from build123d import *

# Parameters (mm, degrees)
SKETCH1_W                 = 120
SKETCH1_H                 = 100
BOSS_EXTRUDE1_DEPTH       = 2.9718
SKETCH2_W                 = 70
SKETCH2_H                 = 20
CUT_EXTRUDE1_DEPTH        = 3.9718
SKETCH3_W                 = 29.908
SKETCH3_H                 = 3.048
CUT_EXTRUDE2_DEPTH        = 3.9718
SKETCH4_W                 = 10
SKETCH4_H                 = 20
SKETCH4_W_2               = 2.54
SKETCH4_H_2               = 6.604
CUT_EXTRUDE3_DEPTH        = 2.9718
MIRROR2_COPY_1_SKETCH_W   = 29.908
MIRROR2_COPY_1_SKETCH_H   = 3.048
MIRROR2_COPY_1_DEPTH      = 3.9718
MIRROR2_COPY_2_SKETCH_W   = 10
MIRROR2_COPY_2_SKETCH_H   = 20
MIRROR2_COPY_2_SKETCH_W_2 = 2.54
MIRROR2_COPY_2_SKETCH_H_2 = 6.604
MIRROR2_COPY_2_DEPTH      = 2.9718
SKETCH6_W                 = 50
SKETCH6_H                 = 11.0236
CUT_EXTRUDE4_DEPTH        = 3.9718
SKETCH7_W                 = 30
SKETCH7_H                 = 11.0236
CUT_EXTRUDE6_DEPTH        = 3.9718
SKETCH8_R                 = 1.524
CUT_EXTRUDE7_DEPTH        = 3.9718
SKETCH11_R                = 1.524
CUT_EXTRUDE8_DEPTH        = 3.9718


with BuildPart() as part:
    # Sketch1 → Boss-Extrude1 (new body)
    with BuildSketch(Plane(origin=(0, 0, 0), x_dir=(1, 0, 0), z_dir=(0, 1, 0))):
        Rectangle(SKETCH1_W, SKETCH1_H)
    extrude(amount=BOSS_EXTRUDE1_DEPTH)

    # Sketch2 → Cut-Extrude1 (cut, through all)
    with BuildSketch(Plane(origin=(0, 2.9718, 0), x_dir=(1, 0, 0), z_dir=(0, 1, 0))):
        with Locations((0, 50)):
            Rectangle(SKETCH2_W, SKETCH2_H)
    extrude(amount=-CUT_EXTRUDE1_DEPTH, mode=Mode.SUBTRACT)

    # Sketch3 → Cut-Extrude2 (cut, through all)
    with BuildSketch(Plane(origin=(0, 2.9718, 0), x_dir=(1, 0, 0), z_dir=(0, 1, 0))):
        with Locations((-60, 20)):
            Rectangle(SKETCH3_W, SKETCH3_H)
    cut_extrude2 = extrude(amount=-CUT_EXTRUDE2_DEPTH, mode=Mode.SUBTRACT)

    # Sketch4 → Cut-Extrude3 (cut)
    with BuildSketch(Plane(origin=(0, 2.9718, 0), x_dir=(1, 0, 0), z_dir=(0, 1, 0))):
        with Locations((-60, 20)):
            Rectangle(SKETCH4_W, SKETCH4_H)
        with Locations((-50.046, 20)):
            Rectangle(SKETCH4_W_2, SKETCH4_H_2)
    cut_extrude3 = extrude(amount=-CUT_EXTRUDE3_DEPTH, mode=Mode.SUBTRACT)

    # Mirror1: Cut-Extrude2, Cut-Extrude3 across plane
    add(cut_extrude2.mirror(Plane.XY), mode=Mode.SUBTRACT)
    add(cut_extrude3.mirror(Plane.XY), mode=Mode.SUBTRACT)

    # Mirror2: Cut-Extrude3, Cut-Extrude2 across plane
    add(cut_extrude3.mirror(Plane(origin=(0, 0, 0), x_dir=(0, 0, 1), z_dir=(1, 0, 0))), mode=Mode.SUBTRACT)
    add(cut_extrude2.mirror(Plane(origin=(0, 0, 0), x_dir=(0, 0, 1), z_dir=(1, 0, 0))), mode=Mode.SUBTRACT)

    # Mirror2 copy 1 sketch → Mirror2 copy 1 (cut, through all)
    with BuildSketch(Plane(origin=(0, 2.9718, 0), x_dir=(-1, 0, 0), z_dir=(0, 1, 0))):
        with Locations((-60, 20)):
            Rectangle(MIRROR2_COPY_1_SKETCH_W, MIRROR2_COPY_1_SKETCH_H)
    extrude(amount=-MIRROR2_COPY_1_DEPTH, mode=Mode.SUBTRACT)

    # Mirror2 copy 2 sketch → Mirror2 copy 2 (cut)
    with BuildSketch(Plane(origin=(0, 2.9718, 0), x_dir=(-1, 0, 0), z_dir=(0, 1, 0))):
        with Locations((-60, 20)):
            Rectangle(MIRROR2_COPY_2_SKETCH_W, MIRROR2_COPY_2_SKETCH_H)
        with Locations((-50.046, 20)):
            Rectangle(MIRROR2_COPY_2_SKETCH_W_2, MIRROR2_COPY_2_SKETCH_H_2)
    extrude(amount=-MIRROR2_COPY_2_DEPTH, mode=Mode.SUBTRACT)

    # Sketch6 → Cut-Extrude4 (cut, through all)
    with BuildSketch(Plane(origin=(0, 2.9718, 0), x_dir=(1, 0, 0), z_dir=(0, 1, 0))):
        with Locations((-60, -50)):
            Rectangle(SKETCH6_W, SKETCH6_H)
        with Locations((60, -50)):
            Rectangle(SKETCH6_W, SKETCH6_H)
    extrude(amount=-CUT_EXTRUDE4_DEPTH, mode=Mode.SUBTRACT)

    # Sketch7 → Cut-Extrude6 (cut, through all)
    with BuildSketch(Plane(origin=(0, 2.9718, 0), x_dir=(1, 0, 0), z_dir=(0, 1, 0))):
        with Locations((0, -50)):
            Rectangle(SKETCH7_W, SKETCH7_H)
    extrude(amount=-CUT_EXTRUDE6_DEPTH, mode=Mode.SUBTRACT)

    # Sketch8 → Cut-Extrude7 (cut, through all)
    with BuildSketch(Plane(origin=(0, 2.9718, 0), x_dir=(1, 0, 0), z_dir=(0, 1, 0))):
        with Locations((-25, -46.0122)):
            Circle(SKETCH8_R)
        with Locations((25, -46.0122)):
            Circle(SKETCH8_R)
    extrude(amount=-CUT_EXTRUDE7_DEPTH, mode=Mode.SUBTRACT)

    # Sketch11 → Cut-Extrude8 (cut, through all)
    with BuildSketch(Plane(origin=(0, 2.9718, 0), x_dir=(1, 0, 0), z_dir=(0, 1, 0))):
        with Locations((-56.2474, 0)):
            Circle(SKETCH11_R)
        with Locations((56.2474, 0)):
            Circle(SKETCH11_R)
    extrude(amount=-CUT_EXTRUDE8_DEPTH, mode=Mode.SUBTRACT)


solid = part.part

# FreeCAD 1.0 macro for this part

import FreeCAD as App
import Part
import Sketcher

doc = App.newDocument("Part")
params = doc.addObject("Spreadsheet::Sheet", "Params")
for row, (alias, value) in enumerate([
    ("sketch1_width", "120 mm"),
    ("sketch1_height", "100 mm"),
    ("pad1_length", "2.9718 mm"),
    ("sketch2_width", "70 mm"),
    ("sketch2_height", "20 mm"),
    ("sketch4_width", "10 mm"),
    ("sketch4_height", "20 mm"),
    ("sketch4_width2", "2.54 mm"),
    ("pocket3_length", "2.9718 mm"),
    ("sketch6_width", "10 mm"),
    ("sketch6_height", "20 mm"),
    ("sketch6_width2", "2.54 mm"),
    ("pocket5_length", "2.9718 mm"),
    ("sketch7_width", "50 mm"),
    ("sketch8_width", "30 mm"),
], start=1):
    params.set(f"A{row}", alias)
    params.set(f"B{row}", "=" + value)
    params.setAlias(f"B{row}", alias)

body = doc.addObject("PartDesign::Body", "Body")

# Sketch on XZ plane
sketch1 = body.newObject("Sketcher::SketchObject", "Sketch")
sketch1.AttachmentSupport = (doc.getObject("XZ_Plane"), [""])
sketch1.MapMode = "FlatFace"
sketch1.addGeometry([
    Part.LineSegment(App.Vector(-60, -50, 0), App.Vector(-60, 50, 0)),
    Part.LineSegment(App.Vector(-60, 50, 0), App.Vector(60, 50, 0)),
    Part.LineSegment(App.Vector(60, 50, 0), App.Vector(60, -50, 0)),
    Part.LineSegment(App.Vector(60, -50, 0), App.Vector(-60, -50, 0)),
], False)
sketch1.addConstraint([
    Sketcher.Constraint("Coincident", 0, 2, 1, 1),
    Sketcher.Constraint("Coincident", 1, 2, 2, 1),
    Sketcher.Constraint("Coincident", 2, 2, 3, 1),
    Sketcher.Constraint("Coincident", 3, 2, 0, 1),
    Sketcher.Constraint("Vertical", 0),
    Sketcher.Constraint("Horizontal", 1),
    Sketcher.Constraint("Vertical", 2),
    Sketcher.Constraint("Horizontal", 3),
    Sketcher.Constraint("Symmetric", 0, 2, 2, 2, -1, 1),
    Sketcher.Constraint("DistanceX", 1, 1, 1, 2, 120.0),
    Sketcher.Constraint("DistanceY", 0, 1, 0, 2, 100.0),
])
sketch1.setExpression("Constraints[9]", "Params.sketch1_width")
sketch1.setExpression("Constraints[10]", "Params.sketch1_height")
pad1 = body.newObject("PartDesign::Pad", "Pad")
pad1.Profile = sketch1
pad1.setExpression("Length", "Params.pad1_length")
pad1.Reversed = True

# Sketch on XZ plane
sketch2 = body.newObject("Sketcher::SketchObject", "Sketch001")
sketch2.AttachmentSupport = (doc.getObject("XZ_Plane"), [""])
sketch2.MapMode = "FlatFace"
sketch2.AttachmentOffset = App.Placement(App.Vector(0, 0, -2.9718), App.Rotation())
sketch2.addGeometry([
    Part.LineSegment(App.Vector(-35, -60, 0), App.Vector(-35, -40, 0)),
    Part.LineSegment(App.Vector(-35, -40, 0), App.Vector(35, -40, 0)),
    Part.LineSegment(App.Vector(35, -40, 0), App.Vector(35, -60, 0)),
    Part.LineSegment(App.Vector(35, -60, 0), App.Vector(-35, -60, 0)),
], False)
sketch2.addConstraint([
    Sketcher.Constraint("Coincident", 0, 2, 1, 1),
    Sketcher.Constraint("Coincident", 1, 2, 2, 1),
    Sketcher.Constraint("Coincident", 2, 2, 3, 1),
    Sketcher.Constraint("Coincident", 3, 2, 0, 1),
    Sketcher.Constraint("Vertical", 0),
    Sketcher.Constraint("Horizontal", 1),
    Sketcher.Constraint("Vertical", 2),
    Sketcher.Constraint("Horizontal", 3),
    Sketcher.Constraint("DistanceX", 1, 1, 1, 2, 70.0),
    Sketcher.Constraint("DistanceY", 0, 1, 0, 2, 20.0),
    Sketcher.Constraint("DistanceX", 0, 2, -1, 1, 35.0),
    Sketcher.Constraint("DistanceY", 0, 2, -1, 1, 40.0),
])
sketch2.setExpression("Constraints[8]", "Params.sketch2_width")
sketch2.setExpression("Constraints[9]", "Params.sketch2_height")
pocket1 = body.newObject("PartDesign::Pocket", "Pocket")
pocket1.Profile = sketch2
pocket1.Type = "ThroughAll"
pocket1.Reversed = True

# Sketch on XZ plane
sketch3 = body.newObject("Sketcher::SketchObject", "Sketch002")
sketch3.AttachmentSupport = (doc.getObject("XZ_Plane"), [""])
sketch3.MapMode = "FlatFace"
sketch3.AttachmentOffset = App.Placement(App.Vector(0, 0, -2.9718), App.Rotation())
sketch3.addGeometry([
    Part.LineSegment(App.Vector(-74.954, -21.524, 0), App.Vector(-74.954, -18.476, 0)),
    Part.LineSegment(App.Vector(-74.954, -18.476, 0), App.Vector(-45.046, -18.476, 0)),
    Part.LineSegment(App.Vector(-45.046, -18.476, 0), App.Vector(-45.046, -21.524, 0)),
    Part.LineSegment(App.Vector(-45.046, -21.524, 0), App.Vector(-74.954, -21.524, 0)),
], False)
sketch3.addConstraint([
    Sketcher.Constraint("Coincident", 0, 2, 1, 1),
    Sketcher.Constraint("Coincident", 1, 2, 2, 1),
    Sketcher.Constraint("Coincident", 2, 2, 3, 1),
    Sketcher.Constraint("Coincident", 3, 2, 0, 1),
    Sketcher.Constraint("Vertical", 0),
    Sketcher.Constraint("Horizontal", 1),
    Sketcher.Constraint("Vertical", 2),
    Sketcher.Constraint("Horizontal", 3),
    Sketcher.Constraint("DistanceX", 1, 1, 1, 2, 29.908),
    Sketcher.Constraint("DistanceY", 0, 1, 0, 2, 3.048),
    Sketcher.Constraint("DistanceX", 0, 2, -1, 1, 74.954),
    Sketcher.Constraint("DistanceY", 0, 2, -1, 1, 18.476),
])
pocket2 = body.newObject("PartDesign::Pocket", "Pocket001")
pocket2.Profile = sketch3
pocket2.Type = "ThroughAll"
pocket2.Reversed = True

# Sketch on XZ plane
sketch4 = body.newObject("Sketcher::SketchObject", "Sketch003")
sketch4.AttachmentSupport = (doc.getObject("XZ_Plane"), [""])
sketch4.MapMode = "FlatFace"
sketch4.AttachmentOffset = App.Placement(App.Vector(0, 0, -2.9718), App.Rotation())
sketch4.addGeometry([
    Part.LineSegment(App.Vector(-65, -30, 0), App.Vector(-65, -10, 0)),  # 0
    Part.LineSegment(App.Vector(-65, -10, 0), App.Vector(-55, -10, 0)),  # 1
    Part.LineSegment(App.Vector(-55, -10, 0), App.Vector(-55, -30, 0)),  # 2
    Part.LineSegment(App.Vector(-55, -30, 0), App.Vector(-65, -30, 0)),  # 3
    Part.LineSegment(App.Vector(-51.316, -23.302, 0), App.Vector(-51.316, -16.698, 0)),  # 4
    Part.LineSegment(App.Vector(-51.316, -16.698, 0), App.Vector(-48.776, -16.698, 0)),  # 5
    Part.LineSegment(App.Vector(-48.776, -16.698, 0), App.Vector(-48.776, -23.302, 0)),  # 6
    Part.LineSegment(App.Vector(-48.776, -23.302, 0), App.Vector(-51.316, -23.302, 0)),  # 7
], False)
sketch4.addConstraint([
    Sketcher.Constraint("Coincident", 0, 2, 1, 1),
    Sketcher.Constraint("Coincident", 1, 2, 2, 1),
    Sketcher.Constraint("Coincident", 2, 2, 3, 1),
    Sketcher.Constraint("Coincident", 3, 2, 0, 1),
    Sketcher.Constraint("Coincident", 4, 2, 5, 1),
    Sketcher.Constraint("Coincident", 5, 2, 6, 1),
    Sketcher.Constraint("Coincident", 6, 2, 7, 1),
    Sketcher.Constraint("Coincident", 7, 2, 4, 1),
    Sketcher.Constraint("Vertical", 0),
    Sketcher.Constraint("Horizontal", 1),
    Sketcher.Constraint("Vertical", 2),
    Sketcher.Constraint("Horizontal", 3),
    Sketcher.Constraint("Vertical", 4),
    Sketcher.Constraint("Horizontal", 5),
    Sketcher.Constraint("Vertical", 6),
    Sketcher.Constraint("Horizontal", 7),
    Sketcher.Constraint("DistanceX", 1, 1, 1, 2, 10.0),
    Sketcher.Constraint("DistanceY", 0, 1, 0, 2, 20.0),
    Sketcher.Constraint("DistanceX", 0, 2, -1, 1, 65.0),
    Sketcher.Constraint("DistanceY", 0, 2, -1, 1, 10.0),
    Sketcher.Constraint("DistanceX", 5, 1, 5, 2, 2.54),
    Sketcher.Constraint("DistanceY", 4, 1, 4, 2, 6.604),
    Sketcher.Constraint("DistanceX", 4, 2, -1, 1, 51.316),
    Sketcher.Constraint("DistanceY", 4, 2, -1, 1, 16.698),
])
sketch4.setExpression("Constraints[16]", "Params.sketch4_width")
sketch4.setExpression("Constraints[17]", "Params.sketch4_height")
sketch4.setExpression("Constraints[20]", "Params.sketch4_width2")
pocket3 = body.newObject("PartDesign::Pocket", "Pocket002")
pocket3.Profile = sketch4
pocket3.setExpression("Length", "Params.pocket3_length")
pocket3.Reversed = True
doc.recompute()

mirrored = body.newObject("PartDesign::Mirrored", "Mirrored")
mirrored.Originals = [pocket2, pocket3]
mirrored.MirrorPlane = (doc.getObject("XY_Plane"), [""])
body.Tip = mirrored
doc.recompute()

mirrored2 = body.newObject("PartDesign::Mirrored", "Mirrored001")
mirrored2.Originals = [pocket3, pocket2]
mirrored2.MirrorPlane = (doc.getObject("YZ_Plane"), [""])
body.Tip = mirrored2

# Sketch on XZ plane
sketch5 = body.newObject("Sketcher::SketchObject", "Sketch004")
sketch5.AttachmentSupport = (doc.getObject("XZ_Plane"), [""])
sketch5.MapMode = "FlatFace"
sketch5.AttachmentOffset = App.Placement(App.Vector(0, 0, -2.9718), App.Rotation())
sketch5.addGeometry([
    Part.LineSegment(App.Vector(74.954, 21.524, 0), App.Vector(74.954, 18.476, 0)),
    Part.LineSegment(App.Vector(74.954, 18.476, 0), App.Vector(45.046, 18.476, 0)),
    Part.LineSegment(App.Vector(45.046, 18.476, 0), App.Vector(45.046, 21.524, 0)),
    Part.LineSegment(App.Vector(45.046, 21.524, 0), App.Vector(74.954, 21.524, 0)),
], False)
sketch5.addConstraint([
    Sketcher.Constraint("Coincident", 0, 2, 1, 1),
    Sketcher.Constraint("Coincident", 1, 2, 2, 1),
    Sketcher.Constraint("Coincident", 2, 2, 3, 1),
    Sketcher.Constraint("Coincident", 3, 2, 0, 1),
    Sketcher.Constraint("Vertical", 0),
    Sketcher.Constraint("Horizontal", 1),
    Sketcher.Constraint("Vertical", 2),
    Sketcher.Constraint("Horizontal", 3),
    Sketcher.Constraint("DistanceX", 1, 2, 1, 1, 29.908),
    Sketcher.Constraint("DistanceY", 0, 2, 0, 1, 3.048),
    Sketcher.Constraint("DistanceX", -1, 1, 0, 2, 74.954),
    Sketcher.Constraint("DistanceY", -1, 1, 0, 2, 18.476),
])
pocket4 = body.newObject("PartDesign::Pocket", "Pocket003")
pocket4.Profile = sketch5
pocket4.Type = "ThroughAll"
pocket4.Reversed = True

# Sketch on XZ plane
sketch6 = body.newObject("Sketcher::SketchObject", "Sketch005")
sketch6.AttachmentSupport = (doc.getObject("XZ_Plane"), [""])
sketch6.MapMode = "FlatFace"
sketch6.AttachmentOffset = App.Placement(App.Vector(0, 0, -2.9718), App.Rotation())
sketch6.addGeometry([
    Part.LineSegment(App.Vector(65, 30, 0), App.Vector(65, 10, 0)),  # 0
    Part.LineSegment(App.Vector(65, 10, 0), App.Vector(55, 10, 0)),  # 1
    Part.LineSegment(App.Vector(55, 10, 0), App.Vector(55, 30, 0)),  # 2
    Part.LineSegment(App.Vector(55, 30, 0), App.Vector(65, 30, 0)),  # 3
    Part.LineSegment(App.Vector(51.316, 23.302, 0), App.Vector(51.316, 16.698, 0)),  # 4
    Part.LineSegment(App.Vector(51.316, 16.698, 0), App.Vector(48.776, 16.698, 0)),  # 5
    Part.LineSegment(App.Vector(48.776, 16.698, 0), App.Vector(48.776, 23.302, 0)),  # 6
    Part.LineSegment(App.Vector(48.776, 23.302, 0), App.Vector(51.316, 23.302, 0)),  # 7
], False)
sketch6.addConstraint([
    Sketcher.Constraint("Coincident", 0, 2, 1, 1),
    Sketcher.Constraint("Coincident", 1, 2, 2, 1),
    Sketcher.Constraint("Coincident", 2, 2, 3, 1),
    Sketcher.Constraint("Coincident", 3, 2, 0, 1),
    Sketcher.Constraint("Coincident", 4, 2, 5, 1),
    Sketcher.Constraint("Coincident", 5, 2, 6, 1),
    Sketcher.Constraint("Coincident", 6, 2, 7, 1),
    Sketcher.Constraint("Coincident", 7, 2, 4, 1),
    Sketcher.Constraint("Vertical", 0),
    Sketcher.Constraint("Horizontal", 1),
    Sketcher.Constraint("Vertical", 2),
    Sketcher.Constraint("Horizontal", 3),
    Sketcher.Constraint("Vertical", 4),
    Sketcher.Constraint("Horizontal", 5),
    Sketcher.Constraint("Vertical", 6),
    Sketcher.Constraint("Horizontal", 7),
    Sketcher.Constraint("DistanceX", 1, 2, 1, 1, 10.0),
    Sketcher.Constraint("DistanceY", 0, 2, 0, 1, 20.0),
    Sketcher.Constraint("DistanceX", -1, 1, 0, 2, 65.0),
    Sketcher.Constraint("DistanceY", -1, 1, 0, 2, 10.0),
    Sketcher.Constraint("DistanceX", 5, 2, 5, 1, 2.54),
    Sketcher.Constraint("DistanceY", 4, 2, 4, 1, 6.604),
    Sketcher.Constraint("DistanceX", -1, 1, 4, 2, 51.316),
    Sketcher.Constraint("DistanceY", -1, 1, 4, 2, 16.698),
])
sketch6.setExpression("Constraints[16]", "Params.sketch6_width")
sketch6.setExpression("Constraints[17]", "Params.sketch6_height")
sketch6.setExpression("Constraints[20]", "Params.sketch6_width2")
pocket5 = body.newObject("PartDesign::Pocket", "Pocket004")
pocket5.Profile = sketch6
pocket5.setExpression("Length", "Params.pocket5_length")
pocket5.Reversed = True

# Sketch on XZ plane
sketch7 = body.newObject("Sketcher::SketchObject", "Sketch006")
sketch7.AttachmentSupport = (doc.getObject("XZ_Plane"), [""])
sketch7.MapMode = "FlatFace"
sketch7.AttachmentOffset = App.Placement(App.Vector(0, 0, -2.9718), App.Rotation())
sketch7.addGeometry([
    Part.LineSegment(App.Vector(-85, 44.4882, 0), App.Vector(-85, 55.5118, 0)),  # 0
    Part.LineSegment(App.Vector(-85, 55.5118, 0), App.Vector(-35, 55.5118, 0)),  # 1
    Part.LineSegment(App.Vector(-35, 55.5118, 0), App.Vector(-35, 44.4882, 0)),  # 2
    Part.LineSegment(App.Vector(-35, 44.4882, 0), App.Vector(-85, 44.4882, 0)),  # 3
    Part.LineSegment(App.Vector(35, 44.4882, 0), App.Vector(35, 55.5118, 0)),  # 4
    Part.LineSegment(App.Vector(35, 55.5118, 0), App.Vector(85, 55.5118, 0)),  # 5
    Part.LineSegment(App.Vector(85, 55.5118, 0), App.Vector(85, 44.4882, 0)),  # 6
    Part.LineSegment(App.Vector(85, 44.4882, 0), App.Vector(35, 44.4882, 0)),  # 7
], False)
sketch7.addConstraint([
    Sketcher.Constraint("Coincident", 0, 2, 1, 1),
    Sketcher.Constraint("Coincident", 1, 2, 2, 1),
    Sketcher.Constraint("Coincident", 2, 2, 3, 1),
    Sketcher.Constraint("Coincident", 3, 2, 0, 1),
    Sketcher.Constraint("Coincident", 4, 2, 5, 1),
    Sketcher.Constraint("Coincident", 5, 2, 6, 1),
    Sketcher.Constraint("Coincident", 6, 2, 7, 1),
    Sketcher.Constraint("Coincident", 7, 2, 4, 1),
    Sketcher.Constraint("Vertical", 0),
    Sketcher.Constraint("Horizontal", 1),
    Sketcher.Constraint("Vertical", 2),
    Sketcher.Constraint("Horizontal", 3),
    Sketcher.Constraint("Vertical", 4),
    Sketcher.Constraint("Horizontal", 5),
    Sketcher.Constraint("Vertical", 6),
    Sketcher.Constraint("Horizontal", 7),
    Sketcher.Constraint("Symmetric", 1, 2, 4, 2, -2),
    Sketcher.Constraint("Symmetric", 3, 2, 6, 2, -2),
    Sketcher.Constraint("DistanceX", 1, 1, 1, 2, 50.0),
    Sketcher.Constraint("DistanceX", 0, 2, -1, 1, 85.0),
    Sketcher.Constraint("DistanceY", 0, 1, 0, 2, 11.0236),
    Sketcher.Constraint("DistanceY", -1, 1, 0, 2, 55.5118),
])
sketch7.setExpression("Constraints[18]", "Params.sketch7_width")
pocket6 = body.newObject("PartDesign::Pocket", "Pocket005")
pocket6.Profile = sketch7
pocket6.Type = "ThroughAll"
pocket6.Reversed = True

# Sketch on XZ plane
sketch8 = body.newObject("Sketcher::SketchObject", "Sketch007")
sketch8.AttachmentSupport = (doc.getObject("XZ_Plane"), [""])
sketch8.MapMode = "FlatFace"
sketch8.AttachmentOffset = App.Placement(App.Vector(0, 0, -2.9718), App.Rotation())
sketch8.addGeometry([
    Part.LineSegment(App.Vector(-15, 44.4882, 0), App.Vector(-15, 55.5118, 0)),
    Part.LineSegment(App.Vector(-15, 55.5118, 0), App.Vector(15, 55.5118, 0)),
    Part.LineSegment(App.Vector(15, 55.5118, 0), App.Vector(15, 44.4882, 0)),
    Part.LineSegment(App.Vector(15, 44.4882, 0), App.Vector(-15, 44.4882, 0)),
], False)
sketch8.addConstraint([
    Sketcher.Constraint("Coincident", 0, 2, 1, 1),
    Sketcher.Constraint("Coincident", 1, 2, 2, 1),
    Sketcher.Constraint("Coincident", 2, 2, 3, 1),
    Sketcher.Constraint("Coincident", 3, 2, 0, 1),
    Sketcher.Constraint("Vertical", 0),
    Sketcher.Constraint("Horizontal", 1),
    Sketcher.Constraint("Vertical", 2),
    Sketcher.Constraint("Horizontal", 3),
    Sketcher.Constraint("DistanceX", 1, 1, 1, 2, 30.0),
    Sketcher.Constraint("DistanceX", 0, 2, -1, 1, 15.0),
    Sketcher.Constraint("DistanceY", 0, 1, 0, 2, 11.0236),
    Sketcher.Constraint("DistanceY", -1, 1, 0, 2, 55.5118),
])
sketch8.setExpression("Constraints[8]", "Params.sketch8_width")
pocket7 = body.newObject("PartDesign::Pocket", "Pocket006")
pocket7.Profile = sketch8
pocket7.Type = "ThroughAll"
pocket7.Reversed = True

# Sketch on XZ plane
sketch9 = body.newObject("Sketcher::SketchObject", "Sketch008")
sketch9.AttachmentSupport = (doc.getObject("XZ_Plane"), [""])
sketch9.MapMode = "FlatFace"
sketch9.AttachmentOffset = App.Placement(App.Vector(0, 0, -2.9718), App.Rotation())
sketch9.addGeometry([
    Part.Circle(App.Vector(-25, 46.0122, 0), App.Vector(0, 0, 1), 1.524),
    Part.Circle(App.Vector(25, 46.0122, 0), App.Vector(0, 0, 1), 1.524),
], False)
sketch9.addConstraint([
    Sketcher.Constraint("Equal", 0, 1),
    Sketcher.Constraint("Symmetric", 0, 3, 1, 3, -2),
    Sketcher.Constraint("Diameter", 0, 3.048),
    Sketcher.Constraint("DistanceX", 0, 3, -1, 1, 25.0),
    Sketcher.Constraint("DistanceY", -1, 1, 0, 3, 46.0122),
])
pocket8 = body.newObject("PartDesign::Pocket", "Pocket007")
pocket8.Profile = sketch9
pocket8.Type = "ThroughAll"
pocket8.Reversed = True

# Sketch on XZ plane
sketch10 = body.newObject("Sketcher::SketchObject", "Sketch009")
sketch10.AttachmentSupport = (doc.getObject("XZ_Plane"), [""])
sketch10.MapMode = "FlatFace"
sketch10.AttachmentOffset = App.Placement(App.Vector(0, 0, -2.9718), App.Rotation())
sketch10.addGeometry([
    Part.Circle(App.Vector(-56.2474, 0, 0), App.Vector(0, 0, 1), 1.524),
    Part.Circle(App.Vector(56.2474, 0, 0), App.Vector(0, 0, 1), 1.524),
], False)
sketch10.addConstraint([
    Sketcher.Constraint("Equal", 0, 1),
    Sketcher.Constraint("Symmetric", 0, 3, 1, 3, -1, 1),
    Sketcher.Constraint("PointOnObject", 0, 3, -1),
    Sketcher.Constraint("Diameter", 0, 3.048),
    Sketcher.Constraint("DistanceX", 0, 3, -1, 1, 56.2474),
])
pocket9 = body.newObject("PartDesign::Pocket", "Pocket008")
pocket9.Profile = sketch10
pocket9.Type = "ThroughAll"
pocket9.Reversed = True

doc.recompute()
